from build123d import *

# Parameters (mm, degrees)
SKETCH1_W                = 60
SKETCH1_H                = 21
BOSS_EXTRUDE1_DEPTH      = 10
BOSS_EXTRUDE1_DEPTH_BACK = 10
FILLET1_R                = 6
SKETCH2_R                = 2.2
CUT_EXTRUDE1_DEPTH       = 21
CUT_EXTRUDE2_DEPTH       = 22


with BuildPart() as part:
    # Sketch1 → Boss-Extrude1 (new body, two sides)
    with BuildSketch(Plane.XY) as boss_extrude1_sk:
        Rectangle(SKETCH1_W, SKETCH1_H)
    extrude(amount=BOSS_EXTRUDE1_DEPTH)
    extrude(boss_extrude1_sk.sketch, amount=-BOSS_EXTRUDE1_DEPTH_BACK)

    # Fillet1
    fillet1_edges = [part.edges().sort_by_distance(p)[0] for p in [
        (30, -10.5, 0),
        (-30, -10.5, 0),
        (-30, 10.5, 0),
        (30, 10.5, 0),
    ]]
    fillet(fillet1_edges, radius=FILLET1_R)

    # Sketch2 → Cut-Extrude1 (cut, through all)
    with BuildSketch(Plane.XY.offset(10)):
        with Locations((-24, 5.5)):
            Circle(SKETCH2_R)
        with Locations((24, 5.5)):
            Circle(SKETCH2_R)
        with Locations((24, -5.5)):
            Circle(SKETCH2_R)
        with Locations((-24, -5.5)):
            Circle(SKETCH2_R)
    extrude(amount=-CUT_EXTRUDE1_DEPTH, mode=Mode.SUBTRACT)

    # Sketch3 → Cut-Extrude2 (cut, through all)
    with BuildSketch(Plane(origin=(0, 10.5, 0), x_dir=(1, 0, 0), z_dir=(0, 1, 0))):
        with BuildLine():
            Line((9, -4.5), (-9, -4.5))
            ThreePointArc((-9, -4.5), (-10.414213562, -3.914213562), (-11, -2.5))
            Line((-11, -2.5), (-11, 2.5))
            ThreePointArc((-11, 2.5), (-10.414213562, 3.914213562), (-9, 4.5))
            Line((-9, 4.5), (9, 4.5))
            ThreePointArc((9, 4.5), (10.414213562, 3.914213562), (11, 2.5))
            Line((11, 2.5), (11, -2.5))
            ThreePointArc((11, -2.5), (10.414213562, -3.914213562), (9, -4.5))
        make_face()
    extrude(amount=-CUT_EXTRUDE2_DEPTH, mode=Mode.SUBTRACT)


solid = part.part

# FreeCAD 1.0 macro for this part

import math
import FreeCAD as App
import Part
import Sketcher
from FreeCAD import Vector


def edges_at(feature, points):
    """Names of the edges that pass closest to the given points."""
    edges = feature.Shape.Edges
    near = lambda p: min(range(len(edges)), key=lambda i: edges[i].distToShape(Part.Vertex(*p))[0])
    return sorted({f"Edge{near(p) + 1}" for p in points})


def add_polygon(sketch, points):
    """Adds a closed chain of lines whose ends are joined by coincident constraints."""
    first, n = sketch.GeometryCount, len(points)
    for a, b in zip(points, points[1:] + points[:1]):
        sketch.addGeometry(Part.LineSegment(App.Vector(*a, 0), App.Vector(*b, 0)), False)
    for i in range(n):
        sketch.addConstraint(Sketcher.Constraint("Coincident", first + i, 2, first + (i + 1) % n, 1))

doc = App.newDocument("Part")
body = doc.addObject("PartDesign::Body", "Body")

# Sketch on XY plane
sketch1 = body.newObject("Sketcher::SketchObject", "Sketch")
sketch1.AttachmentSupport = (doc.getObject("XY_Plane"), [""])
sketch1.MapMode = "FlatFace"
add_polygon(sketch1, [(-30, 10), (-30, -10), (30, -10), (30, 10)])  # lines 0-3
sketch1.addConstraint([
    Sketcher.Constraint("Vertical", 0),
    Sketcher.Constraint("Horizontal", 1),
    Sketcher.Constraint("Vertical", 2),
    Sketcher.Constraint("Horizontal", 3),
    Sketcher.Constraint("Symmetric", 0, 2, 2, 2, -1, 1),
    Sketcher.Constraint("DistanceX", 1, 1, 1, 2, 60.0),
    Sketcher.Constraint("DistanceY", 0, 2, 0, 1, 21.0),
])
pad1 = body.newObject("PartDesign::Pad", "Pad")
pad1.Profile = sketch1
pad1.Type = "TwoLengths"
pad1.Length = 10
pad1.Length2 = 10
doc.recompute()

fillet = body.newObject("PartDesign::Fillet", "Fillet")
fillet.Base = (pad1, edges_at(pad1, [
    (30, -10.5, 0),
    (-30, -10.5, 0),
    (-30, 10.5, 0),
    (30, 10.5, 0),
]))
fillet.Radius = 6

# Sketch on XY plane
sketch2 = body.newObject("Sketcher::SketchObject", "Sketch001")
sketch2.AttachmentSupport = (doc.getObject("XY_Plane"), [""])
sketch2.MapMode = "FlatFace"
sketch2.AttachmentOffset = App.Placement(Vector(0, 0, 10), App.Rotation())
sketch2.addGeometry([
    Part.Circle(Vector(-24, 5.5, 0), Vector(0, 0, 1), 2.2),
    Part.Circle(Vector(24, 5.5, 0), Vector(0, 0, 1), 2.2),
    Part.Circle(Vector(24, -5.5, 0), Vector(0, 0, 1), 2.2),
    Part.Circle(Vector(-24, -5.5, 0), Vector(0, 0, 1), 2.2),
], False)
sketch2.addConstraint([
    Sketcher.Constraint("Equal", 0, 1),
    Sketcher.Constraint("Equal", 1, 2),
    Sketcher.Constraint("Equal", 2, 3),
    Sketcher.Constraint("Symmetric", 0, 3, 2, 3, -1, 1),
    Sketcher.Constraint("Symmetric", 1, 3, 3, 3, -1, 1),
    Sketcher.Constraint("Symmetric", 0, 3, 1, 3, -2),
    Sketcher.Constraint("Diameter", 0, 4.4),
    Sketcher.Constraint("DistanceX", 0, 3, -1, 1, 24.0),
    Sketcher.Constraint("DistanceY", 2, 3, 1, 3, 11.0),
])
pocket1 = body.newObject("PartDesign::Pocket", "Pocket")
pocket1.Profile = sketch2
pocket1.Type = "ThroughAll"

# Sketch on XZ plane
sketch3 = body.newObject("Sketcher::SketchObject", "Sketch002")
sketch3.AttachmentSupport = (doc.getObject("XZ_Plane"), [""])
sketch3.MapMode = "FlatFace"
sketch3.AttachmentOffset = App.Placement(Vector(0, 0, -10.5), App.Rotation())
sketch3.addGeometry([
    Part.LineSegment(Vector(-9, 4.5, 0), Vector(9, 4.5, 0)),  # 0
    Part.ArcOfCircle(Part.Circle(Vector(9, 2.5, 0), Vector(0, 0, 1), 2), math.radians(0), math.radians(90)),  # 1
    Part.LineSegment(Vector(11, 2.5, 0), Vector(11, -2.5, 0)),  # 2
    Part.ArcOfCircle(Part.Circle(Vector(9, -2.5, 0), Vector(0, 0, 1), 2), math.radians(-90), math.radians(0)),  # 3
    Part.LineSegment(Vector(9, -4.5, 0), Vector(-9, -4.5, 0)),  # 4
    Part.ArcOfCircle(Part.Circle(Vector(-9, -2.5, 0), Vector(0, 0, 1), 2), math.radians(-180), math.radians(-90)),  # 5
    Part.LineSegment(Vector(-11, -2.5, 0), Vector(-11, 2.5, 0)),  # 6
    Part.ArcOfCircle(Part.Circle(Vector(-9, 2.5, 0), Vector(0, 0, 1), 2), math.radians(90), math.radians(180)),  # 7
], False)
sketch3.addConstraint([
    Sketcher.Constraint("Tangent", 0, 2, 1, 2),
    Sketcher.Constraint("Tangent", 1, 1, 2, 1),
    Sketcher.Constraint("Tangent", 2, 2, 3, 2),
    Sketcher.Constraint("Tangent", 3, 1, 4, 1),
    Sketcher.Constraint("Tangent", 4, 2, 5, 2),
    Sketcher.Constraint("Tangent", 5, 1, 6, 1),
    Sketcher.Constraint("Tangent", 6, 2, 7, 2),
    Sketcher.Constraint("Tangent", 7, 1, 0, 1),
    Sketcher.Constraint("Horizontal", 0),
    Sketcher.Constraint("Vertical", 2),
    Sketcher.Constraint("Horizontal", 4),
    Sketcher.Constraint("Vertical", 6),
    Sketcher.Constraint("Equal", 1, 3),
    Sketcher.Constraint("Equal", 3, 5),
    Sketcher.Constraint("Equal", 5, 7),
    Sketcher.Constraint("Symmetric", 1, 3, 5, 3, -1, 1),
    Sketcher.Constraint("Radius", 1, 2.0),
    Sketcher.Constraint("DistanceX", 0, 1, 0, 2, 18.0),
    Sketcher.Constraint("DistanceY", 2, 2, 2, 1, 5.0),
])
pocket2 = body.newObject("PartDesign::Pocket", "Pocket001")
pocket2.Profile = sketch3
pocket2.Type = "ThroughAll"
pocket2.Reversed = True

doc.recompute()
